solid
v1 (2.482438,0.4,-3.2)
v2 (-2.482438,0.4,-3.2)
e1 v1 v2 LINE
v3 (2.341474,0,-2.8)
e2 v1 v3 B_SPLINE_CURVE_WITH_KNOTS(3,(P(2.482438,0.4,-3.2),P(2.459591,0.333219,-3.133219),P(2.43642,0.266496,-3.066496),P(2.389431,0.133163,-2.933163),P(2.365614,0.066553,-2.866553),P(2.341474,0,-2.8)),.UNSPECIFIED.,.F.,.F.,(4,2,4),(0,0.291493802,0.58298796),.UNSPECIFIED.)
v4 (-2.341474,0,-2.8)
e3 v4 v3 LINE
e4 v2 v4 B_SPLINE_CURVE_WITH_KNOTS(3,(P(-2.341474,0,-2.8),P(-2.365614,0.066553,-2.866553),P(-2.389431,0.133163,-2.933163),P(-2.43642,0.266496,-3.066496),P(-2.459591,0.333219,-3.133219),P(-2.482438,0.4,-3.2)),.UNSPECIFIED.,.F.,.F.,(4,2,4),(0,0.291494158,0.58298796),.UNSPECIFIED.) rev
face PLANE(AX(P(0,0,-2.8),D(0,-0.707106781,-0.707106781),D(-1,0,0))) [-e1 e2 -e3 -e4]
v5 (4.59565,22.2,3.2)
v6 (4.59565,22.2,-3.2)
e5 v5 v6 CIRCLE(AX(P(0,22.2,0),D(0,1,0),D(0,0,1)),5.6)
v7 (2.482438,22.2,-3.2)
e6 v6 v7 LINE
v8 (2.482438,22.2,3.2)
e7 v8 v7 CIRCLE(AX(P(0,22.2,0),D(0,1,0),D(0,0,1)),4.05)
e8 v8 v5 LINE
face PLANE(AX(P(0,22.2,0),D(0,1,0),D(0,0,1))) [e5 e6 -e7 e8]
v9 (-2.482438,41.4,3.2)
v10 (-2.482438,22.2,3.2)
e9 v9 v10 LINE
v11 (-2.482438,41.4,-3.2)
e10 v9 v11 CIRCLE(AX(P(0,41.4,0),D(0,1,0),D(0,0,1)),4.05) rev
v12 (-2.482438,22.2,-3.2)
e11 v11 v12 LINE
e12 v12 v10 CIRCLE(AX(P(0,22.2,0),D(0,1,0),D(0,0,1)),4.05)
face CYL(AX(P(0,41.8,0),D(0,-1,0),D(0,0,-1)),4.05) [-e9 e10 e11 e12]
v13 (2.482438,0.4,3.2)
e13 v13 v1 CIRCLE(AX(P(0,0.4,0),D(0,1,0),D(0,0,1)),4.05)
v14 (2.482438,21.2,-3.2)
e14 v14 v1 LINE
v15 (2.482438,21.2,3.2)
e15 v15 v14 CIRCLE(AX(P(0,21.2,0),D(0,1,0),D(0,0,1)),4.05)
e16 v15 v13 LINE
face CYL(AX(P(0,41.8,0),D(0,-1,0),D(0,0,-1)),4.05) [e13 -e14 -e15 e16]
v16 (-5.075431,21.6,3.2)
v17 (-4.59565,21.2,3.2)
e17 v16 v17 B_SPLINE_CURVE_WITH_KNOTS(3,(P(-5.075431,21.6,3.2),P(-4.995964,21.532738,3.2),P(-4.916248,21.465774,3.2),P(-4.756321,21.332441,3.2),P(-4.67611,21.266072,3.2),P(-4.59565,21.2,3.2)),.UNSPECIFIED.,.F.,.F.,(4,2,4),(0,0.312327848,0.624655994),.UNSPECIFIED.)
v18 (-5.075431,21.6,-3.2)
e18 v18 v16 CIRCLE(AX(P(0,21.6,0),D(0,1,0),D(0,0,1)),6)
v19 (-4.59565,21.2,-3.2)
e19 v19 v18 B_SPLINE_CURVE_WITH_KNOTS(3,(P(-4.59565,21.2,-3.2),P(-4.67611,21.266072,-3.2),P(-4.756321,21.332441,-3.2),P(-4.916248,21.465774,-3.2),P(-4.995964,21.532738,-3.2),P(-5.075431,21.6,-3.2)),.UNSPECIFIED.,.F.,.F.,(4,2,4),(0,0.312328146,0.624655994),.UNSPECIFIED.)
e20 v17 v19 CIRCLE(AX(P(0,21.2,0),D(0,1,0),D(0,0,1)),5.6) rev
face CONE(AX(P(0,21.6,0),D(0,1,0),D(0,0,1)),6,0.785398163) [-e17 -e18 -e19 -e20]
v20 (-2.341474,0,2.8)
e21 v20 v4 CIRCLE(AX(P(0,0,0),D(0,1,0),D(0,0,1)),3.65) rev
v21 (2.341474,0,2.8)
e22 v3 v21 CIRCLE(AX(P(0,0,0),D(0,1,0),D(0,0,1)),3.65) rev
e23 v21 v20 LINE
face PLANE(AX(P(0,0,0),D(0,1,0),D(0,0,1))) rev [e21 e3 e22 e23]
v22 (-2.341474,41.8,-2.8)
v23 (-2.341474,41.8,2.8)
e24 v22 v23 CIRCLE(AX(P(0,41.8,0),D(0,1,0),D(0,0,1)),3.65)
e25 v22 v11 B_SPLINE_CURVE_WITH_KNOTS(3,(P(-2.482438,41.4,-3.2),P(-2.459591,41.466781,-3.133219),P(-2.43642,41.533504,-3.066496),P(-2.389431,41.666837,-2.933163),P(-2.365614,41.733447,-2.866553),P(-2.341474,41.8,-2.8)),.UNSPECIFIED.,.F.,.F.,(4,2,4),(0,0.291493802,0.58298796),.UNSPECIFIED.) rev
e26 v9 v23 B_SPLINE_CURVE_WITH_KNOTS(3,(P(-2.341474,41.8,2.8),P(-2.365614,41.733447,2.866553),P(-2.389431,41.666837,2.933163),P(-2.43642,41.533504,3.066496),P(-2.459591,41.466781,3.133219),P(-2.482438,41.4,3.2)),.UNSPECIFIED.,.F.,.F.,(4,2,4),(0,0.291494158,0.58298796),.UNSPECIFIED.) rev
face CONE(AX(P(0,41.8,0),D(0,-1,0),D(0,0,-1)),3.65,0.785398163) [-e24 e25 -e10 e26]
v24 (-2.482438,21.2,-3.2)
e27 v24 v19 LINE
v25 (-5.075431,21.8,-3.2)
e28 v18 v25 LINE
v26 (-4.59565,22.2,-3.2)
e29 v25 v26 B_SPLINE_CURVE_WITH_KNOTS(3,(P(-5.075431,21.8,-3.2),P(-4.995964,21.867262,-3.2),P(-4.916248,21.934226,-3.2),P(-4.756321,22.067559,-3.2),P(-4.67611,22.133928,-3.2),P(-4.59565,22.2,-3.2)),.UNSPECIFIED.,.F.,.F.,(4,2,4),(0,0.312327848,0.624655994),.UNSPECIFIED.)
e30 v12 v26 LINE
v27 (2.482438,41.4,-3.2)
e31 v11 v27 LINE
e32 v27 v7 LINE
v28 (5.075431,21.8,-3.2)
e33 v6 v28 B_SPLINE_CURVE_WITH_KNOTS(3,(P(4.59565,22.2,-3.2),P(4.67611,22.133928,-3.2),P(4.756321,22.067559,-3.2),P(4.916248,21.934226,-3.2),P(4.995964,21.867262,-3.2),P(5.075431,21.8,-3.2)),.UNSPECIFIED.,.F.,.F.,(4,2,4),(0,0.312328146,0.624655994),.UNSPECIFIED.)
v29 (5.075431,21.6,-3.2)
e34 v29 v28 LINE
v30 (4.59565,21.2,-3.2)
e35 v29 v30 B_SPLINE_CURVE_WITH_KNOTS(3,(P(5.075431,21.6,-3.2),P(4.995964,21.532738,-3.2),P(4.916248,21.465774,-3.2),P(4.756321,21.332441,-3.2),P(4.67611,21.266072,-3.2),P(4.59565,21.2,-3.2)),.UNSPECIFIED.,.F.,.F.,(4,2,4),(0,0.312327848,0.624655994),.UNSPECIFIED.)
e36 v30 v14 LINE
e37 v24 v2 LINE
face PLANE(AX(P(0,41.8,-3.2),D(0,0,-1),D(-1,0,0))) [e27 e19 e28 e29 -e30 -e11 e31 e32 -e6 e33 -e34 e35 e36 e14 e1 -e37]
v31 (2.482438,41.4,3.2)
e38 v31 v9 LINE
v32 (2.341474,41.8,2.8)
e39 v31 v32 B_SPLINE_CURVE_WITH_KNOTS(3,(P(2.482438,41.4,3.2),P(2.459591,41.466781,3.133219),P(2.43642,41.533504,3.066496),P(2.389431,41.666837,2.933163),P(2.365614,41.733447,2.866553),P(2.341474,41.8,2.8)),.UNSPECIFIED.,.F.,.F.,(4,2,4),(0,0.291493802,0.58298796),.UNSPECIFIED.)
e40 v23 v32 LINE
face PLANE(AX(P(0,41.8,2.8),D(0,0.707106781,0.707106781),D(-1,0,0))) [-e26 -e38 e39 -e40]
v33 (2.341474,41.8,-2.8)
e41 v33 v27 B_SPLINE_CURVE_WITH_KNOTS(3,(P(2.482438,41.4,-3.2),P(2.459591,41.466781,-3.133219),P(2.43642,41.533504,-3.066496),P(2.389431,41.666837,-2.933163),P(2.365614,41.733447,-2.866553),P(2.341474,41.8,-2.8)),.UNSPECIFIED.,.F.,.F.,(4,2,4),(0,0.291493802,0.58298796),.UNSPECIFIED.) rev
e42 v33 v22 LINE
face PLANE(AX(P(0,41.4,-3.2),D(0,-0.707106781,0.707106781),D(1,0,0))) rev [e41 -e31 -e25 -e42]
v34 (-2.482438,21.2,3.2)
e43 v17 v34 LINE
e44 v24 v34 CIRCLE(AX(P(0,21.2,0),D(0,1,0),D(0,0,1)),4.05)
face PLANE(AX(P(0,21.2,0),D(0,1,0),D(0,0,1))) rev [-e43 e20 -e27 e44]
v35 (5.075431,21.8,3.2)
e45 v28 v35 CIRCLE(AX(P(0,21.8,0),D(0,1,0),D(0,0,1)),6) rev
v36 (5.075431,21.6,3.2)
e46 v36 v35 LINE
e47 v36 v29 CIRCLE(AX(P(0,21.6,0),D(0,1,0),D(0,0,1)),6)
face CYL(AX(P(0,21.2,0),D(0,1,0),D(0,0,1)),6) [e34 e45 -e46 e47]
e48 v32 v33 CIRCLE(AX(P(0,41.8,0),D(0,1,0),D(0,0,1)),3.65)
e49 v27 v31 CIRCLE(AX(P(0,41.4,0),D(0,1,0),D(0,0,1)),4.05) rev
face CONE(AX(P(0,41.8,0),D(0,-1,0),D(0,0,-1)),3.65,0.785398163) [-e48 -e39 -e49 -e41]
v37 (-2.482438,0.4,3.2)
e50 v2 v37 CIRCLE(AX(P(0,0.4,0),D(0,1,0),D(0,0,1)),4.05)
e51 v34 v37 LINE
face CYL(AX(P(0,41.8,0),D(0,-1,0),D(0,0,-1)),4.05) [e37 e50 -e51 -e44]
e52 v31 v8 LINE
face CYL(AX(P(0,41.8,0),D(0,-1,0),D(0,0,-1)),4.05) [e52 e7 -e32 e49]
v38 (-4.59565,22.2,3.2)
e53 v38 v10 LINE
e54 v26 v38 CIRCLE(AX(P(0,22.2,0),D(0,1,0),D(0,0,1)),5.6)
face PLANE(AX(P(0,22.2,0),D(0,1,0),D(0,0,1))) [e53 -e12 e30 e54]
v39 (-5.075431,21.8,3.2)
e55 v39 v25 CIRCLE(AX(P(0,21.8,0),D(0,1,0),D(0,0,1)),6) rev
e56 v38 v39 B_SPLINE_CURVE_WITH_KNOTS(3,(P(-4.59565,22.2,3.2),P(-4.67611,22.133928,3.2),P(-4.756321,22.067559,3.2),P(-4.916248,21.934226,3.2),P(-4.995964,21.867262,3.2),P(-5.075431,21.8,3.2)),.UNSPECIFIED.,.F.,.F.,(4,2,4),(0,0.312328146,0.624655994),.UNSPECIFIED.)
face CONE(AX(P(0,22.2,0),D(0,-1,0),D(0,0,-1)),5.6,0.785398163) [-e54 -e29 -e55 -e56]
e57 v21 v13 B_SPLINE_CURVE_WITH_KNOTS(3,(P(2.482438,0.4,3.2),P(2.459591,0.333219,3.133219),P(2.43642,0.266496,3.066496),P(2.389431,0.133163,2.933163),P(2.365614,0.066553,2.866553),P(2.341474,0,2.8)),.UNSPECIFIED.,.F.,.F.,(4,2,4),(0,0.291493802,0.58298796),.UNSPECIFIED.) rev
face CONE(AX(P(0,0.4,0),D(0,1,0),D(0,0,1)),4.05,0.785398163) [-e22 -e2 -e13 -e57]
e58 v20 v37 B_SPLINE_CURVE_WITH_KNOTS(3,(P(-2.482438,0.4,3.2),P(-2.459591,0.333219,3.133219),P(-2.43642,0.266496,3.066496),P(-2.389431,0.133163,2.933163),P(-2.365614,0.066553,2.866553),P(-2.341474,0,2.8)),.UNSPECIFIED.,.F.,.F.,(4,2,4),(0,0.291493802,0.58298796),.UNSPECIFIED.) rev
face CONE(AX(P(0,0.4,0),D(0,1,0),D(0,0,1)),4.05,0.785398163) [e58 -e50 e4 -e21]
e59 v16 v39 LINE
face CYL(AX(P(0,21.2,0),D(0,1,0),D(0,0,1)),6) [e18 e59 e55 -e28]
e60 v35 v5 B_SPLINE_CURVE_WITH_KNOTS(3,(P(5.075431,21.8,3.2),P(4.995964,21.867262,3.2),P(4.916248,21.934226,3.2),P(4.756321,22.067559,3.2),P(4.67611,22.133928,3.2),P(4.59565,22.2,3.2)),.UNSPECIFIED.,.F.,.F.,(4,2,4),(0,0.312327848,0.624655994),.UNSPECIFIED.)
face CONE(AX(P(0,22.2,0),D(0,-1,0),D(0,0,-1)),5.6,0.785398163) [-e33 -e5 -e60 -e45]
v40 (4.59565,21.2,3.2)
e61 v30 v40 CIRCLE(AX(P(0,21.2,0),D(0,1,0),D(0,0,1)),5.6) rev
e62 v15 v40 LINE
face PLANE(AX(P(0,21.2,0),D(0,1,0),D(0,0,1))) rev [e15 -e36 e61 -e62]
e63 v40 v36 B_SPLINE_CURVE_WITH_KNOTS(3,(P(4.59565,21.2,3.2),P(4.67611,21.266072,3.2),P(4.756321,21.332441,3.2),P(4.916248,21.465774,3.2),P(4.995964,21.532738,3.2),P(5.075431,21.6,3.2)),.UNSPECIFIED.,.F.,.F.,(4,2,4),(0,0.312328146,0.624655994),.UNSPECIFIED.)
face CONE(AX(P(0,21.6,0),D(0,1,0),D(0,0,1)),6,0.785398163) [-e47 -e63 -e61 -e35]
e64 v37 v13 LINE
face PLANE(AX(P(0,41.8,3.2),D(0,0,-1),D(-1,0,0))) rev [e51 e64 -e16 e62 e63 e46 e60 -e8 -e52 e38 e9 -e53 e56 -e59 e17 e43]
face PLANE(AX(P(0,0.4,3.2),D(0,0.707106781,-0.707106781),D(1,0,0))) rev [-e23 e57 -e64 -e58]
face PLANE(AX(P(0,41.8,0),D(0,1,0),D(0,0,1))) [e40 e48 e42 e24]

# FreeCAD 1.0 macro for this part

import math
import FreeCAD as App
import Part
import Sketcher

V = App.Vector


def edges_at(feature, points):
    """Names of the edges that pass closest to the given points."""
    edges = feature.Shape.Edges
    near = lambda p: min(range(len(edges)), key=lambda i: edges[i].distToShape(Part.Vertex(*p))[0])
    return sorted({f"Edge{near(p) + 1}" for p in points})

doc = App.newDocument("Part")
body = doc.addObject("PartDesign::Body", "Body")

sketch1 = body.newObject("Sketcher::SketchObject", "Sketch")
sketch1.AttachmentSupport = (doc.getObject("XZ_Plane"), [""])
sketch1.MapMode = "FlatFace"
sketch1.addGeometry([
    Part.LineSegment(V(-2.5, 3.2, 0), V(2.5, 3.2, 0)),
    Part.ArcOfCircle(Part.Circle(V(0, 0, 0), V(0, 0, 1), 4), math.radians(-52), math.radians(52)),
    Part.LineSegment(V(2.5, -3.2, 0), V(-2.5, -3.2, 0)),
    Part.ArcOfCircle(Part.Circle(V(0, 0, 0), V(0, 0, 1), 4), math.radians(128), math.radians(232)),
], False)
sketch1.addConstraint([
    Sketcher.Constraint("Coincident", 0, 2, 1, 2),
    Sketcher.Constraint("Coincident", 1, 1, 2, 1),
    Sketcher.Constraint("Coincident", 2, 2, 3, 2),
    Sketcher.Constraint("Coincident", 3, 1, 0, 1),
    Sketcher.Constraint("Horizontal", 0),
    Sketcher.Constraint("Horizontal", 2),
    Sketcher.Constraint("Coincident", 1, 3, -1, 1),
    Sketcher.Constraint("Coincident", 3, 3, -1, 1),
    Sketcher.Constraint("Equal", 1, 3),
    Sketcher.Constraint("Vertical", 0, 2, 1, 1),
    Sketcher.Constraint("Radius", 1, 4.05),
    Sketcher.Constraint("DistanceY", -1, 1, 0, 2, 3.2),
])
pad1 = body.newObject("PartDesign::Pad", "Pad")
pad1.Profile = sketch1
pad1.Length = 41.8
pad1.Reversed = True
doc.recompute()

chamfer = body.newObject("PartDesign::Chamfer", "Chamfer")
chamfer.Base = (pad1, edges_at(pad1, [
    (0, 41.8, -3.2),
    (-4.05, 41.8, 0),
    (4.05, 41.8, 0),
    (0, 41.8, 3.2),
    (4.05, 0, 0),
    (0, 0, 3.2),
    (-4.05, 0, 0),
    (0, 0, -3.2),
]))
chamfer.Size = 0.4

sketch2 = body.newObject("Sketcher::SketchObject", "Sketch001")
sketch2.AttachmentSupport = (doc.getObject("XZ_Plane"), [""])
sketch2.MapMode = "FlatFace"
sketch2.AttachmentOffset = App.Placement(V(0, 0, -22.2), App.Rotation())
sketch2.addGeometry([
    Part.LineSegment(V(-5, 3, 0), V(5, 3, 0)),
    Part.ArcOfCircle(Part.Circle(V(0, 0, 0), V(0, 0, 1), 6), math.radians(-32), math.radians(32)),
    Part.LineSegment(V(5, -3, 0), V(-5, -3, 0)),
    Part.ArcOfCircle(Part.Circle(V(0, 0, 0), V(0, 0, 1), 6), math.radians(148), math.radians(212)),
], False)
sketch2.addConstraint([
    Sketcher.Constraint("Coincident", 0, 2, 1, 2),
    Sketcher.Constraint("Coincident", 1, 1, 2, 1),
    Sketcher.Constraint("Coincident", 2, 2, 3, 2),
    Sketcher.Constraint("Coincident", 3, 1, 0, 1),
    Sketcher.Constraint("Horizontal", 0),
    Sketcher.Constraint("Horizontal", 2),
    Sketcher.Constraint("Coincident", 1, 3, -1, 1),
    Sketcher.Constraint("Coincident", 3, 3, -1, 1),
    Sketcher.Constraint("Equal", 1, 3),
    Sketcher.Constraint("Vertical", 0, 2, 1, 1),
    Sketcher.Constraint("Radius", 1, 6.0),
    Sketcher.Constraint("DistanceY", -1, 1, 0, 2, 3.2),
])
pad2 = body.newObject("PartDesign::Pad", "Pad001")
pad2.Profile = sketch2
pad2.Length = 1
doc.recompute()

chamfer2 = body.newObject("PartDesign::Chamfer", "Chamfer001")
chamfer2.Base = (pad2, edges_at(pad2, [
    (-6, 22.2, 0),
    (-6, 21.2, 0),
    (6, 21.2, 0),
    (6, 22.2, 0),
]))
chamfer2.Size = 0.4

doc.recompute()
